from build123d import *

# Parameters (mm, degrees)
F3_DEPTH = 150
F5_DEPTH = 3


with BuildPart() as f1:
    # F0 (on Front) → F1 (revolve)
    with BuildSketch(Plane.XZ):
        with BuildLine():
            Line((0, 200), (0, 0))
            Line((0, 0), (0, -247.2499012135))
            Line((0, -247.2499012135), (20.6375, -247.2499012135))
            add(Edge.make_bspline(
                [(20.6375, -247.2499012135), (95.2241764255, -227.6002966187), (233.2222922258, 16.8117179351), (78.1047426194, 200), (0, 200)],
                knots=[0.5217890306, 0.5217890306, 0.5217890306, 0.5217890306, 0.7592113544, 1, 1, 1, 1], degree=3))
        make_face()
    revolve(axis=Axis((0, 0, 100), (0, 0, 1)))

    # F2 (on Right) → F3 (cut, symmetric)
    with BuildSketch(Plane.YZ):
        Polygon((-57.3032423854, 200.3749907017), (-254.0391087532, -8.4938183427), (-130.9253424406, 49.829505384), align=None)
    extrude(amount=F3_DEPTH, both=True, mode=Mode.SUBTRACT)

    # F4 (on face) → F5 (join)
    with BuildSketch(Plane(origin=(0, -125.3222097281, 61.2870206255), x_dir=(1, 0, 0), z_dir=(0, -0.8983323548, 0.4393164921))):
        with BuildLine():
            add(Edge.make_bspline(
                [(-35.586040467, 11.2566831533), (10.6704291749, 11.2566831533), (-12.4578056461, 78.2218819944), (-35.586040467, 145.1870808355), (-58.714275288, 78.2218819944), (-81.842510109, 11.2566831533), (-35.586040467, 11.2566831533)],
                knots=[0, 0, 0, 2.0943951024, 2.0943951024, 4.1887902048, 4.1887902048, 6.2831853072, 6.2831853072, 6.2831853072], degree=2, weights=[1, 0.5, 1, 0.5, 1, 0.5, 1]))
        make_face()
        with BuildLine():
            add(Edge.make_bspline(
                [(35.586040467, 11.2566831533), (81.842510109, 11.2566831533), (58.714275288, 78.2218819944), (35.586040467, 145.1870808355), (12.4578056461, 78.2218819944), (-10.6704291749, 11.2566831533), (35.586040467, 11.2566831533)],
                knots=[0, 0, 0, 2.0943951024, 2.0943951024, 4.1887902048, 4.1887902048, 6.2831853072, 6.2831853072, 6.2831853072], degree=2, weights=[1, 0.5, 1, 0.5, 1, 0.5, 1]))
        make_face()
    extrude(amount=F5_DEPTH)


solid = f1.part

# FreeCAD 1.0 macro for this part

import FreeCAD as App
import Part
import Sketcher
from FreeCAD import Vector

doc = App.newDocument("Part")
body = doc.addObject("PartDesign::Body", "Body")

# Sketch on XZ plane
sketch1 = body.newObject("Sketcher::SketchObject", "Sketch")
sketch1.AttachmentSupport = (doc.getObject("XZ_Plane"), [""])
sketch1.MapMode = "FlatFace"
sketch1.addGeometry([
    Part.LineSegment(Vector(0, 200, 0), Vector(0, -247.249901, 0)),
    Part.LineSegment(Vector(0, -247.249901, 0), Vector(20.6375, -247.249901, 0)),
    Part.BSplineCurve([Vector(20.6375, -247.249901, 0), Vector(95.224176, -227.600297, 0), Vector(233.222292, 16.811718, 0), Vector(78.104743, 200, 0), Vector(0, 200, 0)], [4, 1, 4], [0.521789031, 0.759211354, 1], False, 3, [1, 1, 1, 1, 1], False),
], False)
sketch1.addConstraint([
    Sketcher.Constraint("Block", 2),
    Sketcher.Constraint("Coincident", 0, 2, 1, 1),
    Sketcher.Constraint("Coincident", 1, 2, 2, 1),
    Sketcher.Constraint("Coincident", 2, 2, 0, 1),
    Sketcher.Constraint("Vertical", 0),
    Sketcher.Constraint("Horizontal", 1),
])
revolution = body.newObject("PartDesign::Revolution", "Revolution")
revolution.Profile = sketch1
revolution.ReferenceAxis = (sketch1, ["V_Axis"])
revolution.Angle = 360

# Sketch on YZ plane
sketch2 = body.newObject("Sketcher::SketchObject", "Sketch001")
sketch2.AttachmentSupport = (doc.getObject("YZ_Plane"), [""])
sketch2.MapMode = "FlatFace"
sketch2.addGeometry([
    Part.LineSegment(Vector(-57, 200, 0), Vector(-254, -8, 0)),
    Part.LineSegment(Vector(-254, -8, 0), Vector(-131, 50, 0)),
    Part.LineSegment(Vector(-131, 50, 0), Vector(-57, 200, 0)),
], False)
sketch2.addConstraint([
    Sketcher.Constraint("Coincident", 0, 2, 1, 1),
    Sketcher.Constraint("Coincident", 1, 2, 2, 1),
    Sketcher.Constraint("Coincident", 2, 2, 0, 1),
    Sketcher.Constraint("DistanceX", 1, 2, 2, 2, 73.6221),
    Sketcher.Constraint("DistanceX", 0, 2, -1, 1, 254.039109),
    Sketcher.Constraint("DistanceY", 0, 2, -1, 1, 8.493818),
    Sketcher.Constraint("DistanceY", -1, 1, 2, 2, 200.374991),
    Sketcher.Constraint("Distance", 0, 286.934105),
    Sketcher.Constraint("Distance", 1, 136.229988),
])
pocket1 = body.newObject("PartDesign::Pocket", "Pocket")
pocket1.Profile = sketch2
pocket1.Length = 300
pocket1.Midplane = True

# Sketch on an angled plane
sketch3 = body.newObject("Sketcher::SketchObject", "Sketch002")
sketch3.Placement = App.Placement(Vector(0, -125.32221, 61.287021), App.Rotation(Vector(1, 0, 0), Vector(0, 0.439316492, 0.898332355), Vector(0, -0.898332355, 0.439316492), "ZXY"))
sketch3.addGeometry([
    Part.BSplineCurve([Vector(-35.58604, 11.256683, 0), Vector(10.670429, 11.256683, 0), Vector(-12.457806, 78.221882, 0), Vector(-35.58604, 145.187081, 0), Vector(-58.714275, 78.221882, 0), Vector(-81.84251, 11.256683, 0), Vector(-35.58604, 11.256683, 0)], [3, 2, 2, 3], [0, 2.094395102, 4.188790205, 6.283185307], False, 2, [1, 0.5, 1, 0.5, 1, 0.5, 1], False),
    Part.BSplineCurve([Vector(35.58604, 11.256683, 0), Vector(81.84251, 11.256683, 0), Vector(58.714275, 78.221882, 0), Vector(35.58604, 145.187081, 0), Vector(12.457806, 78.221882, 0), Vector(-10.670429, 11.256683, 0), Vector(35.58604, 11.256683, 0)], [3, 2, 2, 3], [0, 2.094395102, 4.188790205, 6.283185307], False, 2, [1, 0.5, 1, 0.5, 1, 0.5, 1], False),
], False)
sketch3.addConstraint([
    Sketcher.Constraint("Block", 0),
    Sketcher.Constraint("Block", 1),
])
pad1 = body.newObject("PartDesign::Pad", "Pad")
pad1.Profile = sketch3
pad1.Length = 3

doc.recompute()
